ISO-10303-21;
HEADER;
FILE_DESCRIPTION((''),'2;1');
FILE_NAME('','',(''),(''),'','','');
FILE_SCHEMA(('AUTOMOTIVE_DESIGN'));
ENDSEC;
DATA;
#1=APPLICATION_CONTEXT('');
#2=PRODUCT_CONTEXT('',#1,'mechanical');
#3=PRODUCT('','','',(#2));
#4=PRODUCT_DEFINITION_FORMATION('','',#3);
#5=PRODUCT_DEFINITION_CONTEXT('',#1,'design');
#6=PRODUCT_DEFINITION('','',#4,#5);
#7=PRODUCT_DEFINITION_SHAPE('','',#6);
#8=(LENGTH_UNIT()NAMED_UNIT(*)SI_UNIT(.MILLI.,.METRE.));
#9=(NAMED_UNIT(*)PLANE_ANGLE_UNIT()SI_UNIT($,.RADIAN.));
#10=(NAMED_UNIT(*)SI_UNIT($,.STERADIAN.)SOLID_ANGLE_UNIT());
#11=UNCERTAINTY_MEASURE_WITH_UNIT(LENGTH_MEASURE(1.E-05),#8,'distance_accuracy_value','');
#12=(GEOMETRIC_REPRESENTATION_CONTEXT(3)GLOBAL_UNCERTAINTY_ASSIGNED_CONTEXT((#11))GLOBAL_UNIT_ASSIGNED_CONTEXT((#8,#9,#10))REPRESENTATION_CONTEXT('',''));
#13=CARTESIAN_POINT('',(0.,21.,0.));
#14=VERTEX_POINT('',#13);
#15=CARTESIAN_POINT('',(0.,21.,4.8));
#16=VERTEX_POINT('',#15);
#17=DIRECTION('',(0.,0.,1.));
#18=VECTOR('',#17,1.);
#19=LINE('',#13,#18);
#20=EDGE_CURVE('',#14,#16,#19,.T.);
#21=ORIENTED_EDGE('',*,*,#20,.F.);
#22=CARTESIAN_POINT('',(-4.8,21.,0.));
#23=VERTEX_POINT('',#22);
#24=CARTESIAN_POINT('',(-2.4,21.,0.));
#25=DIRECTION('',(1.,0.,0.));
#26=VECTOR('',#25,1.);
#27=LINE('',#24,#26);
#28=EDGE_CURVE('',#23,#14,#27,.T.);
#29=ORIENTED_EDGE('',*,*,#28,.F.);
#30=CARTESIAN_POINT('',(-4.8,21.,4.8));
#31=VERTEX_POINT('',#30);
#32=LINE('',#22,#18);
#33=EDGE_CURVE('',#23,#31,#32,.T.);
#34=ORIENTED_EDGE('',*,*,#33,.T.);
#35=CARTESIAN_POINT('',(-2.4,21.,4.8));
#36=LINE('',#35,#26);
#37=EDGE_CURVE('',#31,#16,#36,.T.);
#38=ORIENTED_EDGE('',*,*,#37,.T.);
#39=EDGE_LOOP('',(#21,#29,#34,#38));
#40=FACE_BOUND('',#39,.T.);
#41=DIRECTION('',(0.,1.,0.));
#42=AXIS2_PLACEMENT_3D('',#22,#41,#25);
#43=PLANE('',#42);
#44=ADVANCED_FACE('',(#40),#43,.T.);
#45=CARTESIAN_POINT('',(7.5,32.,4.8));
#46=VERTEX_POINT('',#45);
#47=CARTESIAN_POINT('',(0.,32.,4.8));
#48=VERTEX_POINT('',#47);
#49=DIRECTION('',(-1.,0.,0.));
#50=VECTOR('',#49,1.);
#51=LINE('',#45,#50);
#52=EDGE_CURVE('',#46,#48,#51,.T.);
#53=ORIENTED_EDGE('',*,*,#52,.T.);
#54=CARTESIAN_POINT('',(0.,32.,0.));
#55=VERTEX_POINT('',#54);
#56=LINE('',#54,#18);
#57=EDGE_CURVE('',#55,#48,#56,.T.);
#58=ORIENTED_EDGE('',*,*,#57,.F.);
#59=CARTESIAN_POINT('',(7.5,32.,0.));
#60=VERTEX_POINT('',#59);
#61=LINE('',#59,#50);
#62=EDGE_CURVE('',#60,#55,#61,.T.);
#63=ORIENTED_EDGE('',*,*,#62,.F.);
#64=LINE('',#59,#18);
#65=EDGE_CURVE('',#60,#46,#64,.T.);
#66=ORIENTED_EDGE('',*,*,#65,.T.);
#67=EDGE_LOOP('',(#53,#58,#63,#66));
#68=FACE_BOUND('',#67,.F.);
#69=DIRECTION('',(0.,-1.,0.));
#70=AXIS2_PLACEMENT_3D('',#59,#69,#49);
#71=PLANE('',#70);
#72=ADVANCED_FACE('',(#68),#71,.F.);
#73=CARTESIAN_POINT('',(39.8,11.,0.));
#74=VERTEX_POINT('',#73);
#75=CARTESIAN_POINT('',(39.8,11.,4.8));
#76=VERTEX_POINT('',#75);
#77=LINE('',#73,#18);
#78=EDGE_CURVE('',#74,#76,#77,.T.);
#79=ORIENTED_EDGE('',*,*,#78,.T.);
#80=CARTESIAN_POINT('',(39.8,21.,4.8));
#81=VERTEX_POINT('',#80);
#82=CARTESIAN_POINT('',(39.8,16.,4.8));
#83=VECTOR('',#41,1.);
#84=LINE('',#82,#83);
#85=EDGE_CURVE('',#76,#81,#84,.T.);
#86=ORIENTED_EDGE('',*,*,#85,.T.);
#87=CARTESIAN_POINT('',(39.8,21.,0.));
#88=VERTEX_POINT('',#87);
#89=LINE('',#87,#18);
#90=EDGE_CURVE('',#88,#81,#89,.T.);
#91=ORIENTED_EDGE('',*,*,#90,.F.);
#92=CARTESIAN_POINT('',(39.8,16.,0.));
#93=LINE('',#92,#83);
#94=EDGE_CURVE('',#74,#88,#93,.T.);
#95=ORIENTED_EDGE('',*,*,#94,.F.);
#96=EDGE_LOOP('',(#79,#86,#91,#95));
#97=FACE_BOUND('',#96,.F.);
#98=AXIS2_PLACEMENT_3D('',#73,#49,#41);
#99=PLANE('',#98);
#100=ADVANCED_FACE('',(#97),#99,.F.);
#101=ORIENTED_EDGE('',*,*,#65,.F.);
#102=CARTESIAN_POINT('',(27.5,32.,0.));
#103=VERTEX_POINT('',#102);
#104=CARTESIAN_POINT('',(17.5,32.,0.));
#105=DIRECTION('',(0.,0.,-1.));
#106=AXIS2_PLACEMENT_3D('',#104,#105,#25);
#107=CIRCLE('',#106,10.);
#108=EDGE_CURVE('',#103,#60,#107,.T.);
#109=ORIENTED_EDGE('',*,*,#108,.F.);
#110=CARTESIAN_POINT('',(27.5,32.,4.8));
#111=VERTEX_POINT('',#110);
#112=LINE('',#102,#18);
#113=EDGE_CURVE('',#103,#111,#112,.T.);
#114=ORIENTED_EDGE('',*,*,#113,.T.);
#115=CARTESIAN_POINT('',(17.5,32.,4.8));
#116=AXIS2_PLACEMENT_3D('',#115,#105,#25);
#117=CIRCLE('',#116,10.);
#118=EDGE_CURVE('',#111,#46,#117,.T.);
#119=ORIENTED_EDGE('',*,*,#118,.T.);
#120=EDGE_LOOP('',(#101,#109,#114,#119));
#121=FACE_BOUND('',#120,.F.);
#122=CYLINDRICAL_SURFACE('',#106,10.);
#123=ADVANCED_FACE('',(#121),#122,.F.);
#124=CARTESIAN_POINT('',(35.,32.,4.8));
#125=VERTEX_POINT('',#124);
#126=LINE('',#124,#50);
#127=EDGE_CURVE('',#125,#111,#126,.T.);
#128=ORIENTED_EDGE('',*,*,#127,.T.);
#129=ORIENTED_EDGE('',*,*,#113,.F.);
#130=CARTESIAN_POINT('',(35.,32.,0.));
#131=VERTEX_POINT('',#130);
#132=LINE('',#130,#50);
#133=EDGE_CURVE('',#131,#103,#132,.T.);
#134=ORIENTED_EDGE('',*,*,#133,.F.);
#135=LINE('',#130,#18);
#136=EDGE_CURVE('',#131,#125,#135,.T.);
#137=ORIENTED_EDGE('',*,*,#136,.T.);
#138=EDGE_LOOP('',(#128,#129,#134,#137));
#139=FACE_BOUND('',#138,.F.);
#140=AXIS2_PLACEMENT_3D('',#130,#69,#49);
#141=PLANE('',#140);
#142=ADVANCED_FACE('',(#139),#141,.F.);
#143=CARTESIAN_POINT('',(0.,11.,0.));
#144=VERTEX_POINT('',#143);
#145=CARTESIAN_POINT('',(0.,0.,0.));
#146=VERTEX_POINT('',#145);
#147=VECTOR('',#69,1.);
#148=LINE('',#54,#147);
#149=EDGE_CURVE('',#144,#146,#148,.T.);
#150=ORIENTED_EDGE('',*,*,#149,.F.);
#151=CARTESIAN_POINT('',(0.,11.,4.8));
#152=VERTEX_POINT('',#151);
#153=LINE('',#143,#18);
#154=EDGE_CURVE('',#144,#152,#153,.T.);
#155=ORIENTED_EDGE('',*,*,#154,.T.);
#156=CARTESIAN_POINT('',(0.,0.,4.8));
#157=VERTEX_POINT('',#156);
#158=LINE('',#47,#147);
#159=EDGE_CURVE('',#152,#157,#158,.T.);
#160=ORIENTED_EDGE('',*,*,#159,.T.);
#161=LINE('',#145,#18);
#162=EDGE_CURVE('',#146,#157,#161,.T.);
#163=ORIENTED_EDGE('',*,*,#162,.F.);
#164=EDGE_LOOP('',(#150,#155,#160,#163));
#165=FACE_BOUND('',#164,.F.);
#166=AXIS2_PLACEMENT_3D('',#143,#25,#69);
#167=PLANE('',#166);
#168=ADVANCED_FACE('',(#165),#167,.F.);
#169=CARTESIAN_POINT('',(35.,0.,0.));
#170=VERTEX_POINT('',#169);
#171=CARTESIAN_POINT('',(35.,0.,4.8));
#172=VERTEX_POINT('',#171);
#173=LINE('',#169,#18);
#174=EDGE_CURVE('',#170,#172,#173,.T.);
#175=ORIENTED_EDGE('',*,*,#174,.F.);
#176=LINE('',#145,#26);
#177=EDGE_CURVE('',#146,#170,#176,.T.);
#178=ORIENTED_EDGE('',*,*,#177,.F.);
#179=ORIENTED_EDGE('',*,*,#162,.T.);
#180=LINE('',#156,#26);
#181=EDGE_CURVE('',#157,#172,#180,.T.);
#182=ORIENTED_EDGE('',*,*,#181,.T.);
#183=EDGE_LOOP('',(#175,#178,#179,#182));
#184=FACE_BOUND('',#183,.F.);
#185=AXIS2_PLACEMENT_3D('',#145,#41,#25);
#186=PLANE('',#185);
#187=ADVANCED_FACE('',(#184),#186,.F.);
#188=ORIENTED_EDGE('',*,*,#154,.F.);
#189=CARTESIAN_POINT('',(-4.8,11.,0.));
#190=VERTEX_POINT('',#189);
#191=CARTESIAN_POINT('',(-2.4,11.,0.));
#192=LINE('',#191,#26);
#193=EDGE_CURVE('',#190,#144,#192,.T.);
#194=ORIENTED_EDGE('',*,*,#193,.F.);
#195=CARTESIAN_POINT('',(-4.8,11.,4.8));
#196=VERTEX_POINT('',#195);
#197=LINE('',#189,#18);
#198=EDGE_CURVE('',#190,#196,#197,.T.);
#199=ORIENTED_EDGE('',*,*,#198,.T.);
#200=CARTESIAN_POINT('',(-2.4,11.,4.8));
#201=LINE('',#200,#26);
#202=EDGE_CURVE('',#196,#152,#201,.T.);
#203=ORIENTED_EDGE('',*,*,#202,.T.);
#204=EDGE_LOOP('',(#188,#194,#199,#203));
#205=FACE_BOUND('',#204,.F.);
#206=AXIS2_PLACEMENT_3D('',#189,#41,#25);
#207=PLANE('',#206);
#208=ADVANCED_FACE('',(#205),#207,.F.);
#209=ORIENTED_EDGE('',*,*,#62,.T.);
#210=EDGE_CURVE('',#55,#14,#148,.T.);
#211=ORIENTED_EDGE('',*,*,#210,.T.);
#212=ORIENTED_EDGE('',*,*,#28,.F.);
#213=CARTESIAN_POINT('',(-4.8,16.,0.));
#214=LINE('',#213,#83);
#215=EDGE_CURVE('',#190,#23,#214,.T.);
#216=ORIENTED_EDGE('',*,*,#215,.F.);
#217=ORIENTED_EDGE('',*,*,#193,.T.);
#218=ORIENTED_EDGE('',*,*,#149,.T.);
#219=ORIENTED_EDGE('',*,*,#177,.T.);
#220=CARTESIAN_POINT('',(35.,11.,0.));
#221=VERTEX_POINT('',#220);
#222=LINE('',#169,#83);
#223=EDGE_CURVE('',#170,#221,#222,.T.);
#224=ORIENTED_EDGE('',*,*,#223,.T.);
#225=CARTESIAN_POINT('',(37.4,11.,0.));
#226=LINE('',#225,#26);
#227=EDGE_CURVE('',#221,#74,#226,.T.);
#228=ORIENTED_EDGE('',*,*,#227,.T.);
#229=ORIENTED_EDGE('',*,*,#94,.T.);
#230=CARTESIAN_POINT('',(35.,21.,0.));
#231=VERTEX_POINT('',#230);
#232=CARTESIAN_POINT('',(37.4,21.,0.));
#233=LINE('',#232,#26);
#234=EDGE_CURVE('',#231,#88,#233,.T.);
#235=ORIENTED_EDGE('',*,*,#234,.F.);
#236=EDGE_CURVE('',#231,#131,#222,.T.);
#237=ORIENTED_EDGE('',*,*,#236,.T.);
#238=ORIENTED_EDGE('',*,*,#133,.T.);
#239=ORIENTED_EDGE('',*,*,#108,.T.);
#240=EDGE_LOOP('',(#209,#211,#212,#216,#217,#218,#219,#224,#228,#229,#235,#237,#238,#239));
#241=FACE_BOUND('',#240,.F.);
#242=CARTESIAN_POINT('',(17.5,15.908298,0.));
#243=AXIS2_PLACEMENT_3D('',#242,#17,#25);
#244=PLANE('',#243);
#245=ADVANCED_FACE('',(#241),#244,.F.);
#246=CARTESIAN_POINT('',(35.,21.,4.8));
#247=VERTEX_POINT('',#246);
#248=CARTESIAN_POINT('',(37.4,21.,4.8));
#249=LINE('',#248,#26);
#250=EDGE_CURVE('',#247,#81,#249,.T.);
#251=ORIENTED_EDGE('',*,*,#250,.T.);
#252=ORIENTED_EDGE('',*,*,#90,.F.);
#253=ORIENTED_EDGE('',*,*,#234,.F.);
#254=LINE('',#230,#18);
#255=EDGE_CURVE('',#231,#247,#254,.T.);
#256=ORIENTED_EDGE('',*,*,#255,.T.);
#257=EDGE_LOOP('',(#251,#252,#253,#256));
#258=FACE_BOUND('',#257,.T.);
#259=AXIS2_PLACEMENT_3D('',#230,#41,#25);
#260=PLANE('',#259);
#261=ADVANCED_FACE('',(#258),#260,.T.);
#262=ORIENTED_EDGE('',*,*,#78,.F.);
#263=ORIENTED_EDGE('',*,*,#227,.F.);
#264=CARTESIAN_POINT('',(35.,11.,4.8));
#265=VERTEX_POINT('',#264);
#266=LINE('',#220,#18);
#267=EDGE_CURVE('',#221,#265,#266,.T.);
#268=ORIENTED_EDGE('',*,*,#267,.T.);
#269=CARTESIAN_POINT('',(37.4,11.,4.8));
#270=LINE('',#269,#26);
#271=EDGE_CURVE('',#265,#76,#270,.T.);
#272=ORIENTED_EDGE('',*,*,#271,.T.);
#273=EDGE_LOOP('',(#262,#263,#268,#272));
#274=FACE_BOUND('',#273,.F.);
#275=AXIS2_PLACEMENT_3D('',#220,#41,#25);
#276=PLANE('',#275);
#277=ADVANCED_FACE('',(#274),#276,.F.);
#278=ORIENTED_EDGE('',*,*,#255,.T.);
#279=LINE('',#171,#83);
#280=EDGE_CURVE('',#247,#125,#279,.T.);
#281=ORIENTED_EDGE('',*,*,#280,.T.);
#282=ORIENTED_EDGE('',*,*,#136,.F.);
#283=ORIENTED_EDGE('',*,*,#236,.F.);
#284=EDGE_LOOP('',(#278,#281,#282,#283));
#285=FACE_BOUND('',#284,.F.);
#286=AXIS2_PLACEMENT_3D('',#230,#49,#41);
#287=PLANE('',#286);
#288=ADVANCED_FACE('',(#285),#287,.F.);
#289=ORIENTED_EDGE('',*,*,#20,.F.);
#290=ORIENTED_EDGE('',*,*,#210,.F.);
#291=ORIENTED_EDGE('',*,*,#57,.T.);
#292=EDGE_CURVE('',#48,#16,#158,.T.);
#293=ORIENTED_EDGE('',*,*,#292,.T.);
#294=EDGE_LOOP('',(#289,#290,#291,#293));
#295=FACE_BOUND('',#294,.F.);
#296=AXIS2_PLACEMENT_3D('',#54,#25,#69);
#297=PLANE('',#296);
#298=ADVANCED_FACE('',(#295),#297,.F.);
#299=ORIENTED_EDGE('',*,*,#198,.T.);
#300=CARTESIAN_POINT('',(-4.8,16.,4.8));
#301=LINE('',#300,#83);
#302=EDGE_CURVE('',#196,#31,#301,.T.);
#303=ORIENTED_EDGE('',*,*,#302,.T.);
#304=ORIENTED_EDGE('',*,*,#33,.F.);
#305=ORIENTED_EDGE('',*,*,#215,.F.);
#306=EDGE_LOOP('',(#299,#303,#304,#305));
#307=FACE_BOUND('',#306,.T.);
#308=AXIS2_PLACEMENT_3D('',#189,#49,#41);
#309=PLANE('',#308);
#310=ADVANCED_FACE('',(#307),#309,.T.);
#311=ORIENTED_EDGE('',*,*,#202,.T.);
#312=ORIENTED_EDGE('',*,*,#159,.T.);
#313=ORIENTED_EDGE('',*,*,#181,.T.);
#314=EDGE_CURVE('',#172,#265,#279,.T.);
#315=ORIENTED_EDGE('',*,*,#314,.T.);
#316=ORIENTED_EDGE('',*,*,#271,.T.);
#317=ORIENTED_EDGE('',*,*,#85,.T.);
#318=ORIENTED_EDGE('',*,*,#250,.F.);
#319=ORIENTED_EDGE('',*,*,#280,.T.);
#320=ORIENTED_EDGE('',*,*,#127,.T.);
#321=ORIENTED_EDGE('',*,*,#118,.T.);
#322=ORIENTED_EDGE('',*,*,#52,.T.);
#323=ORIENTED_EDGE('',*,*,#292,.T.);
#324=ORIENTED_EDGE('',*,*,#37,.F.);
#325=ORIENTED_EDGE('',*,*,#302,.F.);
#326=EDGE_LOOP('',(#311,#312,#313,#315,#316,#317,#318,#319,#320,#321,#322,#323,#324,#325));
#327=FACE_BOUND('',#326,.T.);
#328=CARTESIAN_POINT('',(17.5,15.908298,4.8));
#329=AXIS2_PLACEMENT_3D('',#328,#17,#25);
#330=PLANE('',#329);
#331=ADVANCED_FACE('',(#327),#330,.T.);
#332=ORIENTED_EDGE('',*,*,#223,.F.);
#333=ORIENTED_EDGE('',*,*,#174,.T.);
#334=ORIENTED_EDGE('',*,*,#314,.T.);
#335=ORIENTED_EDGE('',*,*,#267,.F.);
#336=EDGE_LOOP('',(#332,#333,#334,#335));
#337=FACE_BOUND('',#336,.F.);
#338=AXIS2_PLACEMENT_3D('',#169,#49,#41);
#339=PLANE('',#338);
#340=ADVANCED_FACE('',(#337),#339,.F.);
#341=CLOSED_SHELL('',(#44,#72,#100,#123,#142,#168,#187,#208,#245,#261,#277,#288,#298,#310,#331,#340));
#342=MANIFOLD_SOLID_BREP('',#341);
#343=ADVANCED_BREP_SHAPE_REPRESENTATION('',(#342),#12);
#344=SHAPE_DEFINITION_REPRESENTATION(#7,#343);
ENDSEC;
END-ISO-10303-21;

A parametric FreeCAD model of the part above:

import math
import FreeCAD as App
import Part
import Sketcher
Q = App.Units.Quantity

doc = App.newDocument("Part")
body = doc.addObject("PartDesign::Body", "Body")

sketch1 = doc.addObject("Sketcher::SketchObject", "Sketch")
body.addObject(sketch1)
sketch1.AttachmentSupport = (doc.XY_Plane, [""])
sketch1.MapMode = "FlatFace"
sketch1.addGeometry(Part.LineSegment(App.Vector(0, 0, 0), App.Vector(35, 0, 0)), False)
sketch1.addGeometry(Part.LineSegment(App.Vector(35, 0, 0), App.Vector(35, 11, 0)), False)
sketch1.addGeometry(Part.LineSegment(App.Vector(35, 11, 0), App.Vector(39.8, 11, 0)), False)
sketch1.addGeometry(Part.LineSegment(App.Vector(39.8, 11, 0), App.Vector(39.8, 21, 0)), False)
sketch1.addGeometry(Part.LineSegment(App.Vector(39.8, 21, 0), App.Vector(35, 21, 0)), False)
sketch1.addGeometry(Part.LineSegment(App.Vector(35, 21, 0), App.Vector(35, 32, 0)), False)
sketch1.addGeometry(Part.LineSegment(App.Vector(35, 32, 0), App.Vector(27.5, 32, 0)), False)
sketch1.addGeometry(Part.ArcOfCircle(Part.Circle(App.Vector(17.5, 32, 0), App.Vector(0, 0, 1), 10), math.radians(180), math.radians(360)), False)
sketch1.addGeometry(Part.LineSegment(App.Vector(7.5, 32, 0), App.Vector(0, 32, 0)), False)
sketch1.addGeometry(Part.LineSegment(App.Vector(0, 32, 0), App.Vector(0, 21, 0)), False)
sketch1.addGeometry(Part.LineSegment(App.Vector(0, 21, 0), App.Vector(-4.8, 21, 0)), False)
sketch1.addGeometry(Part.LineSegment(App.Vector(-4.8, 21, 0), App.Vector(-4.8, 11, 0)), False)
sketch1.addGeometry(Part.LineSegment(App.Vector(-4.8, 11, 0), App.Vector(0, 11, 0)), False)
sketch1.addGeometry(Part.LineSegment(App.Vector(0, 11, 0), App.Vector(0, 0, 0)), False)
sketch1.addConstraint(Sketcher.Constraint("Coincident", 0, 2, 1, 1))
sketch1.addConstraint(Sketcher.Constraint("Coincident", 1, 2, 2, 1))
sketch1.addConstraint(Sketcher.Constraint("Coincident", 2, 2, 3, 1))
sketch1.addConstraint(Sketcher.Constraint("Coincident", 3, 2, 4, 1))
sketch1.addConstraint(Sketcher.Constraint("Coincident", 4, 2, 5, 1))
sketch1.addConstraint(Sketcher.Constraint("Coincident", 5, 2, 6, 1))
sketch1.addConstraint(Sketcher.Constraint("Coincident", 6, 2, 7, 2))
sketch1.addConstraint(Sketcher.Constraint("Coincident", 7, 1, 8, 1))
sketch1.addConstraint(Sketcher.Constraint("Coincident", 8, 2, 9, 1))
sketch1.addConstraint(Sketcher.Constraint("Coincident", 9, 2, 10, 1))
sketch1.addConstraint(Sketcher.Constraint("Coincident", 10, 2, 11, 1))
sketch1.addConstraint(Sketcher.Constraint("Coincident", 11, 2, 12, 1))
sketch1.addConstraint(Sketcher.Constraint("Coincident", 12, 2, 13, 1))
sketch1.addConstraint(Sketcher.Constraint("Coincident", 13, 2, 0, 1))
sketch1.addConstraint(Sketcher.Constraint("Horizontal", 0))
sketch1.addConstraint(Sketcher.Constraint("Vertical", 1))
sketch1.addConstraint(Sketcher.Constraint("Horizontal", 2))
sketch1.addConstraint(Sketcher.Constraint("Vertical", 3))
sketch1.addConstraint(Sketcher.Constraint("Horizontal", 4))
sketch1.addConstraint(Sketcher.Constraint("Vertical", 5))
sketch1.addConstraint(Sketcher.Constraint("Horizontal", 6))
sketch1.addConstraint(Sketcher.Constraint("Horizontal", 8))
sketch1.addConstraint(Sketcher.Constraint("Vertical", 9))
sketch1.addConstraint(Sketcher.Constraint("Horizontal", 10))
sketch1.addConstraint(Sketcher.Constraint("Vertical", 11))
sketch1.addConstraint(Sketcher.Constraint("Horizontal", 12))
sketch1.addConstraint(Sketcher.Constraint("Vertical", 13))
sketch1.addConstraint(Sketcher.Constraint("Coincident", 13, 2, -1, 1))
sketch1.addConstraint(Sketcher.Constraint("PointOnObject", 8, 2, -2))
sketch1.addConstraint(Sketcher.Constraint("Horizontal", 7, 3, 5, 2))
sketch1.addConstraint(Sketcher.Constraint("Horizontal", 6, 2, 7, 1))
sketch1.addConstraint(Sketcher.Constraint("Horizontal", 4, 2, 9, 2))
sketch1.addConstraint(Sketcher.Constraint("Horizontal", 2, 2, 11, 2))
sketch1.addConstraint(Sketcher.Constraint("Vertical", 1, 2, 4, 2))
sketch1.addConstraint(Sketcher.Constraint("Equal", 6, 8))
sketch1.addConstraint(Sketcher.Constraint("Equal", 4, 10))
sketch1.addConstraint(Sketcher.Constraint("Equal", 1, 5))
sketch1.addConstraint(Sketcher.Constraint("Radius", 7, Q("10 mm")))
sketch1.addConstraint(Sketcher.Constraint("DistanceX", 0, 1, 0, 2, Q("35 mm")))
sketch1.addConstraint(Sketcher.Constraint("DistanceY", 1, 1, 1, 2, Q("11 mm")))
sketch1.addConstraint(Sketcher.Constraint("DistanceY", 3, 1, 3, 2, Q("10 mm")))
sketch1.addConstraint(Sketcher.Constraint("DistanceX", 2, 1, 2, 2, Q("4.8 mm")))
pad1 = doc.addObject("PartDesign::Pad", "Pad")
body.addObject(pad1)
pad1.Profile = sketch1
pad1.Length = 4.8

doc.recompute()
